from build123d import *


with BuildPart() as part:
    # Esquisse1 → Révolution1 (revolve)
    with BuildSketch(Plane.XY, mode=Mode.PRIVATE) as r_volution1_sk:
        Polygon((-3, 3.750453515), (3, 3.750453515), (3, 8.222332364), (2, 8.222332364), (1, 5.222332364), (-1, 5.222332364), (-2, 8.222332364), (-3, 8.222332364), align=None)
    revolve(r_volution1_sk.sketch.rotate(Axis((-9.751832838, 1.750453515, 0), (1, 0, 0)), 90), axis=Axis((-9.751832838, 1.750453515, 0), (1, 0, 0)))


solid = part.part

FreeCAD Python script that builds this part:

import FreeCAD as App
import Part
import Sketcher

V = App.Vector
Q = App.Units.Quantity


def add_polygon(sketch, points):
    """Adds a closed chain of lines whose ends are joined by coincident constraints."""
    first, n = sketch.GeometryCount, len(points)
    for a, b in zip(points, points[1:] + points[:1]):
        sketch.addGeometry(Part.LineSegment(App.Vector(*a, 0), App.Vector(*b, 0)), False)
    for i in range(n):
        sketch.addConstraint(Sketcher.Constraint("Coincident", first + i, 2, first + (i + 1) % n, 1))

doc = App.newDocument("Part")
body = doc.addObject("PartDesign::Body", "Body")

sketch1 = body.newObject("Sketcher::SketchObject", "Sketch")
sketch1.AttachmentSupport = (doc.getObject("XY_Plane"), [""])
sketch1.MapMode = "FlatFace"
add_polygon(sketch1, [(-3, 3.8), (3, 3.8), (3, 8.2), (2, 8.2), (1, 5.2), (-1, 5.2), (-2, 8.2), (-3, 8.2)])
sketch1.addGeometry(Part.LineSegment(V(-3, 1.8, 0), V(3, 1.8, 0)), True)
sketch1.addConstraint(Sketcher.Constraint("Horizontal", 0))
sketch1.addConstraint(Sketcher.Constraint("Vertical", 1))
sketch1.addConstraint(Sketcher.Constraint("Horizontal", 2))
sketch1.addConstraint(Sketcher.Constraint("Horizontal", 4))
sketch1.addConstraint(Sketcher.Constraint("Horizontal", 6))
sketch1.addConstraint(Sketcher.Constraint("Vertical", 7))
sketch1.addConstraint(Sketcher.Constraint("Horizontal", 8))
sketch1.addConstraint(Sketcher.Constraint("Symmetric", 2, 2, 5, 2, -2))
sketch1.addConstraint(Sketcher.Constraint("Vertical", 7, 2, 8, 1))
sketch1.addConstraint(Sketcher.Constraint("Vertical", 1, 2, 8, 2))
sketch1.addConstraint(Sketcher.Constraint("Equal", 2, 6))
sketch1.addConstraint(Sketcher.Constraint("Equal", 3, 5))
sketch1.addConstraint(Sketcher.Constraint("DistanceX", 0, 1, 0, 2, Q("6 mm")))
sketch1.addConstraint(Sketcher.Constraint("DistanceX", 2, 2, 2, 1, Q("1 mm")))
sketch1.addConstraint(Sketcher.Constraint("DistanceX", 4, 2, 4, 1, Q("2 mm")))
sketch1.addConstraint(Sketcher.Constraint("DistanceY", 3, 2, 2, 2, Q("3 mm")))
sketch1.addConstraint(Sketcher.Constraint("DistanceY", 8, 1, 7, 2, Q("2 mm")))
sketch1.addConstraint(Sketcher.Constraint("DistanceY", 1, 1, 1, 2, Q("4.471879 mm")))
sketch1.addConstraint(Sketcher.Constraint("DistanceY", -1, 1, 0, 2, Q("3.750454 mm")))
revolution = body.newObject("PartDesign::Revolution", "Revolution")
revolution.Profile = sketch1
revolution.ReferenceAxis = (sketch1, ["Axis0"])
revolution.Angle = 360

doc.recompute()
